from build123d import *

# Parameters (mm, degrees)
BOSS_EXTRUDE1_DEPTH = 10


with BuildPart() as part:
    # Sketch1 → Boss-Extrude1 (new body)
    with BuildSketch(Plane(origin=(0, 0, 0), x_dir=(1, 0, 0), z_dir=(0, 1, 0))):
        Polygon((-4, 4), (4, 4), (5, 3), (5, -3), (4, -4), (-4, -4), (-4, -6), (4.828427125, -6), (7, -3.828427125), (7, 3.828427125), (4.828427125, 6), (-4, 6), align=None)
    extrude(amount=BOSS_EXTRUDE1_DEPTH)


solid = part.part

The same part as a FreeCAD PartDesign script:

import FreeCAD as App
import Part
import Sketcher
from FreeCAD import Vector
Q = App.Units.Quantity


def add_polygon(sketch, points):
    """Adds a closed chain of lines whose ends are joined by coincident constraints."""
    first, n = sketch.GeometryCount, len(points)
    for a, b in zip(points, points[1:] + points[:1]):
        sketch.addGeometry(Part.LineSegment(App.Vector(*a, 0), App.Vector(*b, 0)), False)
    for i in range(n):
        sketch.addConstraint(Sketcher.Constraint("Coincident", first + i, 2, first + (i + 1) % n, 1))

doc = App.newDocument("Part")
body = doc.addObject("PartDesign::Body", "Body")

# Sketch on XZ plane
sketch1 = doc.addObject("Sketcher::SketchObject", "Sketch")
body.addObject(sketch1)
sketch1.AttachmentSupport = (doc.XZ_Plane, [""])
sketch1.MapMode = "FlatFace"
add_polygon(sketch1, [(-4, -4), (4, -4), (5, -3), (5, 3), (4, 4), (-4, 4), (-4, 6), (4.8, 6), (7, 3.8), (7, -3.8), (4.8, -6), (-4, -6)])  # lines 0-11
sketch1.addConstraint([
    Sketcher.Constraint("Horizontal", 0),
    Sketcher.Constraint("Vertical", 2),
    Sketcher.Constraint("Horizontal", 4),
    Sketcher.Constraint("Vertical", 5),
    Sketcher.Constraint("Horizontal", 6),
    Sketcher.Constraint("Vertical", 8),
    Sketcher.Constraint("Horizontal", 10),
    Sketcher.Constraint("Vertical", 11),
    Sketcher.Constraint("Symmetric", 0, 2, 4, 2, -1, 1),
    Sketcher.Constraint("Symmetric", 6, 2, 9, 2, -1),
    Sketcher.Constraint("Perpendicular", 1, 3),
    Sketcher.Constraint("Parallel", 3, 7),
    Sketcher.Constraint("Perpendicular", 7, 9),
    Sketcher.Constraint("Vertical", 0, 2, 3, 2),
    Sketcher.Constraint("Vertical", 5, 2, 10, 2),
    Sketcher.Constraint("Equal", 1, 3),
    Sketcher.Constraint("DistanceX", 0, 1, 0, 2, Q("8 mm")),
    Sketcher.Constraint("DistanceY", 2, 1, 2, 2, Q("6 mm")),
    Sketcher.Constraint("DistanceY", 5, 1, 5, 2, Q("2 mm")),
    Sketcher.Constraint("DistanceY", 0, 2, -1, 1, Q("4 mm")),
    Sketcher.Constraint("DistanceX", -1, 1, 7, 2, Q("7 mm")),
    Sketcher.Constraint("DistanceX", 6, 1, 6, 2, Q("8.828427 mm")),
])
pad1 = doc.addObject("PartDesign::Pad", "Pad")
body.addObject(pad1)
pad1.Profile = sketch1
pad1.Length = 10
pad1.Reversed = True

doc.recompute()
